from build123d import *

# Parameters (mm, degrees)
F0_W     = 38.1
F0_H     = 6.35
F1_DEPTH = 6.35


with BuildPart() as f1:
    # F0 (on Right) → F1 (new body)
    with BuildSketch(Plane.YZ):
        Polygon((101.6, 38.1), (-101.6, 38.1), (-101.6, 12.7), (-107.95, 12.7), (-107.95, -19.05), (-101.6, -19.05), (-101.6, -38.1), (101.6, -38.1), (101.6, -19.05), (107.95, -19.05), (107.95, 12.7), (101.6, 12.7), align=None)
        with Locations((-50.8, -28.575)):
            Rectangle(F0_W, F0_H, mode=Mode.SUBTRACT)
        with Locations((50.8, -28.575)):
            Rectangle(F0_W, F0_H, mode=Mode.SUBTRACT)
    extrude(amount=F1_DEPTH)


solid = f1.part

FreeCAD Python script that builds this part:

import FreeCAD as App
import Part
import Sketcher
Q = App.Units.Quantity


def add_polygon(sketch, points):
    """Adds a closed chain of lines whose ends are joined by coincident constraints."""
    first, n = sketch.GeometryCount, len(points)
    for a, b in zip(points, points[1:] + points[:1]):
        sketch.addGeometry(Part.LineSegment(App.Vector(*a, 0), App.Vector(*b, 0)), False)
    for i in range(n):
        sketch.addConstraint(Sketcher.Constraint("Coincident", first + i, 2, first + (i + 1) % n, 1))

doc = App.newDocument("Part")
body = doc.addObject("PartDesign::Body", "Body")

# Sketch on YZ plane
sketch1 = body.newObject("Sketcher::SketchObject", "Sketch")
sketch1.AttachmentSupport = (doc.getObject("YZ_Plane"), [""])
sketch1.MapMode = "FlatFace"
add_polygon(sketch1, [(102, 38), (-102, 38), (-102, 13), (-108, 13), (-108, -19), (-102, -19), (-102, -38), (102, -38), (102, -19), (108, -19), (108, 13), (102, 13)])  # lines 0-11
add_polygon(sketch1, [(-32, -32), (-70, -32), (-70, -25), (-32, -25)])  # lines 12-15
add_polygon(sketch1, [(70, -32), (32, -32), (32, -25), (70, -25)])  # lines 16-19
sketch1.addConstraint(Sketcher.Constraint("Horizontal", 0))
sketch1.addConstraint(Sketcher.Constraint("Vertical", 1))
sketch1.addConstraint(Sketcher.Constraint("Horizontal", 2))
sketch1.addConstraint(Sketcher.Constraint("Vertical", 3))
sketch1.addConstraint(Sketcher.Constraint("Horizontal", 4))
sketch1.addConstraint(Sketcher.Constraint("Vertical", 5))
sketch1.addConstraint(Sketcher.Constraint("Horizontal", 6))
sketch1.addConstraint(Sketcher.Constraint("Vertical", 7))
sketch1.addConstraint(Sketcher.Constraint("Horizontal", 8))
sketch1.addConstraint(Sketcher.Constraint("Vertical", 9))
sketch1.addConstraint(Sketcher.Constraint("Horizontal", 10))
sketch1.addConstraint(Sketcher.Constraint("Vertical", 11))
sketch1.addConstraint(Sketcher.Constraint("Horizontal", 12))
sketch1.addConstraint(Sketcher.Constraint("Vertical", 13))
sketch1.addConstraint(Sketcher.Constraint("Horizontal", 14))
sketch1.addConstraint(Sketcher.Constraint("Vertical", 15))
sketch1.addConstraint(Sketcher.Constraint("Horizontal", 16))
sketch1.addConstraint(Sketcher.Constraint("Vertical", 17))
sketch1.addConstraint(Sketcher.Constraint("Horizontal", 18))
sketch1.addConstraint(Sketcher.Constraint("Vertical", 19))
sketch1.addConstraint(Sketcher.Constraint("Symmetric", 0, 2, 6, 2, -1, 1))
sketch1.addConstraint(Sketcher.Constraint("Symmetric", 4, 2, 7, 2, -2))
sketch1.addConstraint(Sketcher.Constraint("Symmetric", 2, 2, 9, 2, -2))
sketch1.addConstraint(Sketcher.Constraint("Symmetric", 15, 2, 16, 2, -2))
sketch1.addConstraint(Sketcher.Constraint("Symmetric", 13, 2, 18, 2, -2))
sketch1.addConstraint(Sketcher.Constraint("Vertical", 7, 2, 10, 2))
sketch1.addConstraint(Sketcher.Constraint("Equal", 10, 13))
sketch1.addConstraint(Sketcher.Constraint("DistanceX", 0, 2, 0, 1, Q("8 in")))
sketch1.addConstraint(Sketcher.Constraint("DistanceY", 1, 2, 1, 1, Q("1 in")))
sketch1.addConstraint(Sketcher.Constraint("DistanceX", 12, 2, 12, 1, Q("1.5 in")))
sketch1.addConstraint(Sketcher.Constraint("DistanceY", 13, 2, -1, 1, Q("1 in")))
sketch1.addConstraint(Sketcher.Constraint("DistanceY", 5, 2, 1, 2, Q("2 in")))
sketch1.addConstraint(Sketcher.Constraint("DistanceX", 3, 2, 14, 2, Q("3 in")))
sketch1.addConstraint(Sketcher.Constraint("DistanceX", 2, 2, 2, 1, Q("0.25 in")))
sketch1.addConstraint(Sketcher.Constraint("DistanceY", 3, 2, 3, 1, Q("1.25 in")))
pad1 = body.newObject("PartDesign::Pad", "Pad")
pad1.Profile = sketch1
pad1.Length = Q("0.25 in")

doc.recompute()
